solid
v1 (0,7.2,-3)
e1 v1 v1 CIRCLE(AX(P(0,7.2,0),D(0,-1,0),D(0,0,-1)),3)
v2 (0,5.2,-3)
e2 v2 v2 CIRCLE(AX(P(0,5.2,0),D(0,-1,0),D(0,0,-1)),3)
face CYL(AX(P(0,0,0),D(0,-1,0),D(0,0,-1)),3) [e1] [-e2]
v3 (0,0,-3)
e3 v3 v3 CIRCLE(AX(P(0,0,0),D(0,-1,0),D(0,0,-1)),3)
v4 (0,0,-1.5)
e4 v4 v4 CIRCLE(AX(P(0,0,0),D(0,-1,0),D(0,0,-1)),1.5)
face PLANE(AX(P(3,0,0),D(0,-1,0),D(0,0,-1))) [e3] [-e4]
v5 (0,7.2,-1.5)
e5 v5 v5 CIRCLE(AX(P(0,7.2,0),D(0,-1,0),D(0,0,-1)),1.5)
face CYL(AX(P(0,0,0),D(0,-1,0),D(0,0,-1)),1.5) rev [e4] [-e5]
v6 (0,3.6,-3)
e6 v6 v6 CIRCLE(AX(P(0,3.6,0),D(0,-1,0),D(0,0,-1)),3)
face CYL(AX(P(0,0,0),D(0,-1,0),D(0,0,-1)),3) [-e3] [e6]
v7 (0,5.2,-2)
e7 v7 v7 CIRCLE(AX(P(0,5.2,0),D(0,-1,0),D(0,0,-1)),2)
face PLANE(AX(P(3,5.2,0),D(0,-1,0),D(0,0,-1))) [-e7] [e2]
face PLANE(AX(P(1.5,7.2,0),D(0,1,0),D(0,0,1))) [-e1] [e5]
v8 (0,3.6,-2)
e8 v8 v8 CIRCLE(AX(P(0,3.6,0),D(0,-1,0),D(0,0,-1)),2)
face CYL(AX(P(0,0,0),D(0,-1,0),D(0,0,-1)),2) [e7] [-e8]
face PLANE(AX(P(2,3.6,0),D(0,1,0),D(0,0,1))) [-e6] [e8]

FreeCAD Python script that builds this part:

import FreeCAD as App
import Part
import Sketcher

V = App.Vector
Q = App.Units.Quantity

doc = App.newDocument("Part")
body = doc.addObject("PartDesign::Body", "Body")

# Sketch on XY plane
sketch1 = body.newObject("Sketcher::SketchObject", "Sketch")
sketch1.AttachmentSupport = (doc.getObject("XY_Plane"), [""])
sketch1.MapMode = "FlatFace"
sketch1.addGeometry([
    Part.LineSegment(V(3, 7.2, 0), V(1.5, 7.2, 0)),  # 0
    Part.LineSegment(V(1.5, 7.2, 0), V(1.5, 0, 0)),  # 1
    Part.LineSegment(V(1.5, 0, 0), V(3, 0, 0)),  # 2
    Part.LineSegment(V(3, 0, 0), V(3, 3.6, 0)),  # 3
    Part.LineSegment(V(3, 3.6, 0), V(2, 3.6, 0)),  # 4
    Part.LineSegment(V(2, 3.6, 0), V(2, 5.2, 0)),  # 5
    Part.LineSegment(V(2, 5.2, 0), V(3, 5.2, 0)),  # 6
    Part.LineSegment(V(3, 5.2, 0), V(3, 7.2, 0)),  # 7
], False)
sketch1.addConstraint([
    Sketcher.Constraint("Coincident", 0, 2, 1, 1),
    Sketcher.Constraint("Coincident", 1, 2, 2, 1),
    Sketcher.Constraint("Coincident", 2, 2, 3, 1),
    Sketcher.Constraint("Coincident", 3, 2, 4, 1),
    Sketcher.Constraint("Coincident", 4, 2, 5, 1),
    Sketcher.Constraint("Coincident", 5, 2, 6, 1),
    Sketcher.Constraint("Coincident", 6, 2, 7, 1),
    Sketcher.Constraint("Coincident", 7, 2, 0, 1),
    Sketcher.Constraint("Horizontal", 0),
    Sketcher.Constraint("Vertical", 1),
    Sketcher.Constraint("Horizontal", 2),
    Sketcher.Constraint("Vertical", 3),
    Sketcher.Constraint("Horizontal", 4),
    Sketcher.Constraint("Vertical", 5),
    Sketcher.Constraint("Horizontal", 6),
    Sketcher.Constraint("Vertical", 7),
    Sketcher.Constraint("PointOnObject", 1, 2, -1),
    Sketcher.Constraint("Vertical", 3, 2, 6, 2),
    Sketcher.Constraint("DistanceX", 4, 2, 4, 1, Q("1 mm")),
    Sketcher.Constraint("DistanceY", 7, 1, 7, 2, Q("2 mm")),
    Sketcher.Constraint("DistanceX", 0, 2, 0, 1, Q("1.5 mm")),
    Sketcher.Constraint("DistanceY", 1, 2, 1, 1, Q("7.2 mm")),
    Sketcher.Constraint("DistanceY", 3, 1, 3, 2, Q("3.6 mm")),
    Sketcher.Constraint("DistanceX", -1, 1, 2, 2, Q("3 mm")),
])
revolution = body.newObject("PartDesign::Revolution", "Revolution")
revolution.Profile = sketch1
revolution.ReferenceAxis = (sketch1, ["V_Axis"])
revolution.Angle = 360

doc.recompute()
